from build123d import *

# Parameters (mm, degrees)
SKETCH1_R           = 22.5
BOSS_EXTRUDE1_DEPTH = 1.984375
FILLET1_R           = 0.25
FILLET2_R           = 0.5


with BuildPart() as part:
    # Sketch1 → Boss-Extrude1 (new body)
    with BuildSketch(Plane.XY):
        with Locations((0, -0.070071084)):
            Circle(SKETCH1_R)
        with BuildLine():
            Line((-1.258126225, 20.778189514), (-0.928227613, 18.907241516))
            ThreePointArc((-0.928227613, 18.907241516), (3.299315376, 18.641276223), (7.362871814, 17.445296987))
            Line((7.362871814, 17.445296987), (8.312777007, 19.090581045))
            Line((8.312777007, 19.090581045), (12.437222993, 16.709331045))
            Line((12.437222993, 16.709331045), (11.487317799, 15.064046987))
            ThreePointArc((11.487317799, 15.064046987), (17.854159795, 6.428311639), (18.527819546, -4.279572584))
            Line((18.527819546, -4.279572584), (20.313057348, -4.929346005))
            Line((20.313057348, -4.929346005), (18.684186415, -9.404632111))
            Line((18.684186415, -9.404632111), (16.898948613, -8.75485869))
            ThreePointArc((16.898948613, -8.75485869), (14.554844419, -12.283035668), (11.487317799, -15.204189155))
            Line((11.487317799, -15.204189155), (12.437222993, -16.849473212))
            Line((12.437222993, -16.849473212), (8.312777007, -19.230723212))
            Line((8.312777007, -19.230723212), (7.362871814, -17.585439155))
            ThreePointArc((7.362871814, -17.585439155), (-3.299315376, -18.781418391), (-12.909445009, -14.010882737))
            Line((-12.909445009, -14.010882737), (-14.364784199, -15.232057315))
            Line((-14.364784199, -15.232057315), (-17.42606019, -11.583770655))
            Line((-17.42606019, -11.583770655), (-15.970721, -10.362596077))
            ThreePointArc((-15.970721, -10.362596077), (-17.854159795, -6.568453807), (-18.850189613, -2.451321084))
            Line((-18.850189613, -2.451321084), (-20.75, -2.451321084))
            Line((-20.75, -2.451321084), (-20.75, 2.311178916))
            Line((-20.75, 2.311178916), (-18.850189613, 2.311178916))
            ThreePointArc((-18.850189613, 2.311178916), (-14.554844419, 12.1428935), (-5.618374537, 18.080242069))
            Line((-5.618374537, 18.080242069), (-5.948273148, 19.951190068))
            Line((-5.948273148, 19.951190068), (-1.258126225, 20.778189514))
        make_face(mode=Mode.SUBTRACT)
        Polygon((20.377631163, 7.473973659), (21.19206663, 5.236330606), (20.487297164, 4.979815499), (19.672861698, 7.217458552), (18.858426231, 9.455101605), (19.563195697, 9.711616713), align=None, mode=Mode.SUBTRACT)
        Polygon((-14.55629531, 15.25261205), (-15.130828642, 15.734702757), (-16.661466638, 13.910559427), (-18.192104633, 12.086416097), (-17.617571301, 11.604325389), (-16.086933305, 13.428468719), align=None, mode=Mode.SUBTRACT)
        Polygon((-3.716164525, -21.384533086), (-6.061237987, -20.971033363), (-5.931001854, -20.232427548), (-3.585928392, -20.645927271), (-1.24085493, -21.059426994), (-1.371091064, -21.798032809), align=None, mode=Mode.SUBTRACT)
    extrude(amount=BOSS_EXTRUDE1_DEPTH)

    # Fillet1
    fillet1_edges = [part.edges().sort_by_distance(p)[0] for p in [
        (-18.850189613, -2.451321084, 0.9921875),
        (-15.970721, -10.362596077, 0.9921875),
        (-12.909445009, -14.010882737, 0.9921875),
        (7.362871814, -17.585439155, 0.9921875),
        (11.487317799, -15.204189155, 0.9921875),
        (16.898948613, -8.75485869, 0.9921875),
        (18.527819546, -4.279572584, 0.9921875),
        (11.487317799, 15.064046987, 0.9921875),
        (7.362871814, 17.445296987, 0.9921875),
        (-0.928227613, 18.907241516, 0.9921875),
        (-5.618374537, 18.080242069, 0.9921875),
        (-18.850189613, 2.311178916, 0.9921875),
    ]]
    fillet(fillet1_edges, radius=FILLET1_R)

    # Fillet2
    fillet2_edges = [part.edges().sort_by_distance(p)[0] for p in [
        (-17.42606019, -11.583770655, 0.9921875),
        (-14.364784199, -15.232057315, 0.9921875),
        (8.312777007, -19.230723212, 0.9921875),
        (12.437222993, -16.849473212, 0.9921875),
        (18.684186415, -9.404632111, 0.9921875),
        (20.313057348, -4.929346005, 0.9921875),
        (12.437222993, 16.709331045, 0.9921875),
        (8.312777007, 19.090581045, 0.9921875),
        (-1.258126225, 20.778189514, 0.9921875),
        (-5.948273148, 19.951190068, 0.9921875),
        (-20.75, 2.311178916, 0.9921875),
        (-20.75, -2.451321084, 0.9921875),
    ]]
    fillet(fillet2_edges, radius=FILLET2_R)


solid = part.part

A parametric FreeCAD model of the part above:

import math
import FreeCAD as App
import Part
import Sketcher

V = App.Vector
Q = App.Units.Quantity


def edges_at(feature, points):
    """Names of the edges that pass closest to the given points."""
    edges = feature.Shape.Edges
    near = lambda p: min(range(len(edges)), key=lambda i: edges[i].distToShape(Part.Vertex(*p))[0])
    return sorted({f"Edge{near(p) + 1}" for p in points})

doc = App.newDocument("Part")
body = doc.addObject("PartDesign::Body", "Body")

# Sketch on XY plane
sketch1 = body.newObject("Sketcher::SketchObject", "Sketch")
sketch1.AttachmentSupport = (doc.getObject("XY_Plane"), [""])
sketch1.MapMode = "FlatFace"
sketch1.addGeometry([
    Part.Circle(V(0, -0.070071, 0), V(0, 0, 1), 22.5),  # 0
    Part.LineSegment(V(-1.371091, -21.798033, 0), V(-3.716165, -21.384533, 0)),  # 1
    Part.LineSegment(V(-3.716165, -21.384533, 0), V(-6.061238, -20.971033, 0)),  # 2
    Part.LineSegment(V(-6.061238, -20.971033, 0), V(-5.931002, -20.232428, 0)),  # 3
    Part.LineSegment(V(-5.931002, -20.232428, 0), V(-1.240855, -21.059427, 0)),  # 4
    Part.LineSegment(V(-1.240855, -21.059427, 0), V(-1.371091, -21.798033, 0)),  # 5
    Part.LineSegment(V(-5.948273, 19.95119, 0), V(-1.258126, 20.77819, 0)),  # 6
    Part.LineSegment(V(-1.258126, 20.77819, 0), V(-0.928228, 18.907242, 0)),  # 7
    Part.ArcOfCircle(Part.Circle(V(0, -0.070071, 0), V(0, 0, 1), 19), math.radians(67.199752), math.radians(92.800248)),  # 8
    Part.LineSegment(V(7.362872, 17.445297, 0), V(8.312777, 19.090581, 0)),  # 9
    Part.LineSegment(V(8.312777, 19.090581, 0), V(12.437223, 16.709331, 0)),  # 10
    Part.LineSegment(V(12.437223, 16.709331, 0), V(11.487318, 15.064047, 0)),  # 11
    Part.ArcOfCircle(Part.Circle(V(0, -0.070071, 0), V(0, 0, 1), 19), math.radians(-12.800248), math.radians(52.800248)),  # 12
    Part.LineSegment(V(18.52782, -4.279573, 0), V(20.313057, -4.929346, 0)),  # 13
    Part.LineSegment(V(20.313057, -4.929346, 0), V(18.684186, -9.404632, 0)),  # 14
    Part.LineSegment(V(18.684186, -9.404632, 0), V(16.898949, -8.754859, 0)),  # 15
    Part.ArcOfCircle(Part.Circle(V(0, -0.070071, 0), V(0, 0, 1), 19), math.radians(-52.800248), math.radians(-27.199752)),  # 16
    Part.LineSegment(V(11.487318, -15.204189, 0), V(12.437223, -16.849473, 0)),  # 17
    Part.LineSegment(V(12.437223, -16.849473, 0), V(8.312777, -19.230723, 0)),  # 18
    Part.LineSegment(V(8.312777, -19.230723, 0), V(7.362872, -17.585439, 0)),  # 19
    Part.ArcOfCircle(Part.Circle(V(0, -0.070071, 0), V(0, 0, 1), 19), math.radians(-132.800248), math.radians(-67.199752)),  # 20
    Part.LineSegment(V(-12.909445, -14.010883, 0), V(-14.364784, -15.232057, 0)),  # 21
    Part.LineSegment(V(-14.364784, -15.232057, 0), V(-17.42606, -11.583771, 0)),  # 22
    Part.LineSegment(V(-17.42606, -11.583771, 0), V(-15.970721, -10.362596, 0)),  # 23
    Part.ArcOfCircle(Part.Circle(V(0, -0.070071, 0), V(0, 0, 1), 19), math.radians(-172.800248), math.radians(-147.199752)),  # 24
    Part.LineSegment(V(-18.85019, -2.451321, 0), V(-20.75, -2.451321, 0)),  # 25
    Part.LineSegment(V(-20.75, -2.451321, 0), V(-20.75, 2.311179, 0)),  # 26
    Part.LineSegment(V(-20.75, 2.311179, 0), V(-18.85019, 2.311179, 0)),  # 27
    Part.ArcOfCircle(Part.Circle(V(0, -0.070071, 0), V(0, 0, 1), 19), math.radians(107.199752), math.radians(172.800248)),  # 28
    Part.LineSegment(V(-5.618375, 18.080242, 0), V(-5.948273, 19.95119, 0)),  # 29
    Part.LineSegment(V(-15.130829, 15.734703, 0), V(-14.556295, 15.252612, 0)),  # 30
    Part.LineSegment(V(-14.556295, 15.252612, 0), V(-16.086933, 13.428469, 0)),  # 31
    Part.LineSegment(V(-16.086933, 13.428469, 0), V(-17.617571, 11.604325, 0)),  # 32
    Part.LineSegment(V(-17.617571, 11.604325, 0), V(-18.192105, 12.086416, 0)),  # 33
    Part.LineSegment(V(-18.192105, 12.086416, 0), V(-16.661467, 13.910559, 0)),  # 34
    Part.LineSegment(V(-16.661467, 13.910559, 0), V(-15.130829, 15.734703, 0)),  # 35
    Part.LineSegment(V(19.563196, 9.711617, 0), V(20.377631, 7.473974, 0)),  # 36
    Part.LineSegment(V(20.377631, 7.473974, 0), V(21.192067, 5.236331, 0)),  # 37
    Part.LineSegment(V(21.192067, 5.236331, 0), V(20.487297, 4.979815, 0)),  # 38
    Part.LineSegment(V(20.487297, 4.979815, 0), V(19.672862, 7.217459, 0)),  # 39
    Part.LineSegment(V(19.672862, 7.217459, 0), V(18.858426, 9.455102, 0)),  # 40
    Part.LineSegment(V(18.858426, 9.455102, 0), V(19.563196, 9.711617, 0)),  # 41
], False)
sketch1.addConstraint([
    Sketcher.Constraint("Coincident", 1, 2, 2, 1),
    Sketcher.Constraint("Coincident", 2, 2, 3, 1),
    Sketcher.Constraint("Coincident", 3, 2, 4, 1),
    Sketcher.Constraint("Coincident", 4, 2, 5, 1),
    Sketcher.Constraint("Coincident", 5, 2, 1, 1),
    Sketcher.Constraint("Coincident", 6, 2, 7, 1),
    Sketcher.Constraint("Coincident", 7, 2, 8, 2),
    Sketcher.Constraint("Coincident", 8, 1, 9, 1),
    Sketcher.Constraint("Coincident", 9, 2, 10, 1),
    Sketcher.Constraint("Coincident", 10, 2, 11, 1),
    Sketcher.Constraint("Coincident", 11, 2, 12, 2),
    Sketcher.Constraint("Coincident", 12, 1, 13, 1),
    Sketcher.Constraint("Coincident", 13, 2, 14, 1),
    Sketcher.Constraint("Coincident", 14, 2, 15, 1),
    Sketcher.Constraint("Coincident", 15, 2, 16, 2),
    Sketcher.Constraint("Coincident", 16, 1, 17, 1),
    Sketcher.Constraint("Coincident", 17, 2, 18, 1),
    Sketcher.Constraint("Coincident", 18, 2, 19, 1),
    Sketcher.Constraint("Coincident", 19, 2, 20, 2),
    Sketcher.Constraint("Coincident", 20, 1, 21, 1),
    Sketcher.Constraint("Coincident", 21, 2, 22, 1),
    Sketcher.Constraint("Coincident", 22, 2, 23, 1),
    Sketcher.Constraint("Coincident", 23, 2, 24, 2),
    Sketcher.Constraint("Coincident", 24, 1, 25, 1),
    Sketcher.Constraint("Coincident", 25, 2, 26, 1),
    Sketcher.Constraint("Coincident", 26, 2, 27, 1),
    Sketcher.Constraint("Coincident", 27, 2, 28, 2),
    Sketcher.Constraint("Coincident", 28, 1, 29, 1),
    Sketcher.Constraint("Coincident", 29, 2, 6, 1),
    Sketcher.Constraint("Coincident", 30, 2, 31, 1),
    Sketcher.Constraint("Coincident", 31, 2, 32, 1),
    Sketcher.Constraint("Coincident", 32, 2, 33, 1),
    Sketcher.Constraint("Coincident", 33, 2, 34, 1),
    Sketcher.Constraint("Coincident", 34, 2, 35, 1),
    Sketcher.Constraint("Coincident", 35, 2, 30, 1),
    Sketcher.Constraint("Coincident", 36, 2, 37, 1),
    Sketcher.Constraint("Coincident", 37, 2, 38, 1),
    Sketcher.Constraint("Coincident", 38, 2, 39, 1),
    Sketcher.Constraint("Coincident", 39, 2, 40, 1),
    Sketcher.Constraint("Coincident", 40, 2, 41, 1),
    Sketcher.Constraint("Coincident", 41, 2, 36, 1),
    Sketcher.Constraint("Horizontal", 25),
    Sketcher.Constraint("Vertical", 26),
    Sketcher.Constraint("Horizontal", 27),
    Sketcher.Constraint("Coincident", 8, 3, 0, 3),
    Sketcher.Constraint("Coincident", 12, 3, 0, 3),
    Sketcher.Constraint("Coincident", 16, 3, 0, 3),
    Sketcher.Constraint("Coincident", 20, 3, 0, 3),
    Sketcher.Constraint("Coincident", 24, 3, 0, 3),
    Sketcher.Constraint("Coincident", 28, 3, 0, 3),
    Sketcher.Constraint("PointOnObject", 0, 3, -2),
    Sketcher.Constraint("Diameter", 0, Q("45 mm")),
    Sketcher.Constraint("Radius", 8, Q("19 mm")),
    Sketcher.Constraint("Radius", 12, Q("19 mm")),
    Sketcher.Constraint("Radius", 16, Q("19 mm")),
    Sketcher.Constraint("Radius", 20, Q("19 mm")),
    Sketcher.Constraint("Radius", 24, Q("19 mm")),
    Sketcher.Constraint("Radius", 28, Q("19 mm")),
    Sketcher.Constraint("Distance", 3, Q("0.75 mm")),
    Sketcher.Constraint("Distance", 5, Q("0.75 mm")),
    Sketcher.Constraint("Distance", 30, Q("0.75 mm")),
    Sketcher.Constraint("Distance", 33, Q("0.75 mm")),
    Sketcher.Constraint("Distance", 38, Q("0.75 mm")),
    Sketcher.Constraint("Distance", 41, Q("0.75 mm")),
    Sketcher.Constraint("DistanceX", 25, 2, -1, 1, Q("20.75 mm")),
    Sketcher.Constraint("DistanceY", 26, 1, 26, 2, Q("4.7625 mm")),
    Sketcher.Constraint("DistanceX", 3, 2, -1, 1, Q("5.931002 mm")),
    Sketcher.Constraint("DistanceY", 4, 2, 3, 2, Q("0.826999 mm")),
    Sketcher.Constraint("DistanceY", 5, 2, 2, 2, Q("0.826999 mm")),
    Sketcher.Constraint("DistanceX", 6, 2, 8, 1, Q("8.620998 mm")),
    Sketcher.Constraint("DistanceY", 28, 1, 7, 2, Q("0.826999 mm")),
    Sketcher.Constraint("DistanceY", 29, 2, 6, 2, Q("0.826999 mm")),
    Sketcher.Constraint("DistanceY", 37, 2, 10, 2, Q("11.473 mm")),
    Sketcher.Constraint("Distance", 4, Q("4.7625 mm")),
    Sketcher.Constraint("Distance", 6, Q("4.7625 mm")),
    Sketcher.Constraint("Distance", 10, Q("4.7625 mm")),
    Sketcher.Constraint("Distance", 14, Q("4.7625 mm")),
    Sketcher.Constraint("Distance", 18, Q("4.7625 mm")),
    Sketcher.Constraint("Distance", 22, Q("4.7625 mm")),
    Sketcher.Constraint("DistanceX", 25, 2, 25, 1, Q("1.89981 mm")),
    Sketcher.Constraint("DistanceY", -1, 1, 40, 2, Q("9.455102 mm")),
    Sketcher.Constraint("DistanceY", 1, 2, 2, 2, Q("0.4135 mm")),
    Sketcher.Constraint("DistanceX", 6, 2, 7, 2, Q("0.329899 mm")),
    Sketcher.Constraint("DistanceY", 12, 1, 28, 3, Q("4.209501 mm")),
    Sketcher.Constraint("DistanceX", 16, 1, 12, 1, Q("7.040502 mm")),
    Sketcher.Constraint("DistanceY", 17, 2, 12, 1, Q("12.569901 mm")),
    Sketcher.Constraint("DistanceX", 29, 2, 28, 1, Q("0.329899 mm")),
    Sketcher.Constraint("DistanceX", 41, 2, 38, 2, Q("0.924101 mm")),
    Sketcher.Constraint("DistanceY", 38, 2, 41, 2, Q("4.731801 mm")),
    Sketcher.Constraint("Distance", 1, Q("2.38125 mm")),
    Sketcher.Constraint("Distance", 7, Q("1.89981 mm")),
    Sketcher.Constraint("Distance", 9, Q("1.89981 mm")),
    Sketcher.Constraint("Distance", 11, Q("1.89981 mm")),
    Sketcher.Constraint("Distance", 13, Q("1.89981 mm")),
    Sketcher.Constraint("Distance", 15, Q("1.89981 mm")),
    Sketcher.Constraint("Distance", 17, Q("1.89981 mm")),
    Sketcher.Constraint("Distance", 19, Q("1.89981 mm")),
    Sketcher.Constraint("Distance", 21, Q("1.89981 mm")),
    Sketcher.Constraint("Distance", 23, Q("1.89981 mm")),
    Sketcher.Constraint("Distance", 31, Q("2.38125 mm")),
    Sketcher.Constraint("Distance", 32, Q("2.38125 mm")),
    Sketcher.Constraint("Distance", 34, Q("2.38125 mm")),
    Sketcher.Constraint("Distance", 35, Q("2.38125 mm")),
    Sketcher.Constraint("Distance", 36, Q("2.38125 mm")),
    Sketcher.Constraint("Distance", 37, Q("2.38125 mm")),
    Sketcher.Constraint("Distance", 39, Q("2.38125 mm")),
    Sketcher.Constraint("Distance", 40, Q("2.38125 mm")),
    Sketcher.Constraint("DistanceY", 0, 3, -1, 1, Q("0.070071 mm")),
    Sketcher.Constraint("DistanceX", 5, 2, -1, 1, Q("1.371091 mm")),
    Sketcher.Constraint("DistanceY", -1, 1, 9, 2, Q("19.090581 mm")),
    Sketcher.Constraint("DistanceX", -1, 1, 15, 2, Q("16.898949 mm")),
    Sketcher.Constraint("DistanceX", -1, 1, 19, 2, Q("7.362872 mm")),
    Sketcher.Constraint("DistanceX", 22, 2, -1, 1, Q("17.42606 mm")),
    Sketcher.Constraint("DistanceY", 22, 2, -1, 1, Q("11.583771 mm")),
    Sketcher.Constraint("DistanceY", -1, 1, 31, 2, Q("13.428469 mm")),
    Sketcher.Constraint("DistanceX", 32, 2, -1, 1, Q("17.617571 mm")),
    Sketcher.Constraint("DistanceY", -1, 1, 34, 2, Q("13.910559 mm")),
    Sketcher.Constraint("DistanceX", 35, 2, -1, 1, Q("15.130829 mm")),
    Sketcher.Constraint("DistanceX", -1, 1, 36, 2, Q("20.377631 mm")),
    Sketcher.Constraint("DistanceX", -1, 1, 39, 2, Q("19.672862 mm")),
    Sketcher.Constraint("DistanceY", -1, 1, 39, 2, Q("7.217459 mm")),
    Sketcher.Constraint("DistanceY", 1, 2, 8, 3, Q("21.314462 mm")),
    Sketcher.Constraint("DistanceY", 14, 2, 12, 1, Q("5.12506 mm")),
    Sketcher.Constraint("DistanceY", 2, 2, 20, 1, Q("6.960151 mm")),
    Sketcher.Constraint("DistanceX", 30, 2, 28, 1, Q("8.937921 mm")),
    Sketcher.Constraint("DistanceY", 30, 2, 28, 1, Q("2.82763 mm")),
])
pad1 = body.newObject("PartDesign::Pad", "Pad")
pad1.Profile = sketch1
pad1.Length = 1.984375
doc.recompute()

fillet = body.newObject("PartDesign::Fillet", "Fillet")
fillet.Base = (pad1, edges_at(pad1, [
    (-18.85, -2.451, 0.992),
    (-15.971, -10.363, 0.992),
    (-12.909, -14.011, 0.992),
    (7.363, -17.585, 0.992),
    (11.487, -15.204, 0.992),
    (16.899, -8.755, 0.992),
    (18.528, -4.28, 0.992),
    (11.487, 15.064, 0.992),
    (7.363, 17.445, 0.992),
    (-0.928, 18.907, 0.992),
    (-5.618, 18.08, 0.992),
    (-18.85, 2.311, 0.992),
]))
fillet.Radius = 0.25
doc.recompute()

fillet2 = body.newObject("PartDesign::Fillet", "Fillet001")
fillet2.Base = (fillet, edges_at(fillet, [
    (-17.426, -11.584, 0.992),
    (-14.365, -15.232, 0.992),
    (8.313, -19.231, 0.992),
    (12.437, -16.849, 0.992),
    (18.684, -9.405, 0.992),
    (20.313, -4.929, 0.992),
    (12.437, 16.709, 0.992),
    (8.313, 19.091, 0.992),
    (-1.258, 20.778, 0.992),
    (-5.948, 19.951, 0.992),
    (-20.75, 2.311, 0.992),
    (-20.75, -2.451, 0.992),
]))
fillet2.Radius = 0.5

doc.recompute()
